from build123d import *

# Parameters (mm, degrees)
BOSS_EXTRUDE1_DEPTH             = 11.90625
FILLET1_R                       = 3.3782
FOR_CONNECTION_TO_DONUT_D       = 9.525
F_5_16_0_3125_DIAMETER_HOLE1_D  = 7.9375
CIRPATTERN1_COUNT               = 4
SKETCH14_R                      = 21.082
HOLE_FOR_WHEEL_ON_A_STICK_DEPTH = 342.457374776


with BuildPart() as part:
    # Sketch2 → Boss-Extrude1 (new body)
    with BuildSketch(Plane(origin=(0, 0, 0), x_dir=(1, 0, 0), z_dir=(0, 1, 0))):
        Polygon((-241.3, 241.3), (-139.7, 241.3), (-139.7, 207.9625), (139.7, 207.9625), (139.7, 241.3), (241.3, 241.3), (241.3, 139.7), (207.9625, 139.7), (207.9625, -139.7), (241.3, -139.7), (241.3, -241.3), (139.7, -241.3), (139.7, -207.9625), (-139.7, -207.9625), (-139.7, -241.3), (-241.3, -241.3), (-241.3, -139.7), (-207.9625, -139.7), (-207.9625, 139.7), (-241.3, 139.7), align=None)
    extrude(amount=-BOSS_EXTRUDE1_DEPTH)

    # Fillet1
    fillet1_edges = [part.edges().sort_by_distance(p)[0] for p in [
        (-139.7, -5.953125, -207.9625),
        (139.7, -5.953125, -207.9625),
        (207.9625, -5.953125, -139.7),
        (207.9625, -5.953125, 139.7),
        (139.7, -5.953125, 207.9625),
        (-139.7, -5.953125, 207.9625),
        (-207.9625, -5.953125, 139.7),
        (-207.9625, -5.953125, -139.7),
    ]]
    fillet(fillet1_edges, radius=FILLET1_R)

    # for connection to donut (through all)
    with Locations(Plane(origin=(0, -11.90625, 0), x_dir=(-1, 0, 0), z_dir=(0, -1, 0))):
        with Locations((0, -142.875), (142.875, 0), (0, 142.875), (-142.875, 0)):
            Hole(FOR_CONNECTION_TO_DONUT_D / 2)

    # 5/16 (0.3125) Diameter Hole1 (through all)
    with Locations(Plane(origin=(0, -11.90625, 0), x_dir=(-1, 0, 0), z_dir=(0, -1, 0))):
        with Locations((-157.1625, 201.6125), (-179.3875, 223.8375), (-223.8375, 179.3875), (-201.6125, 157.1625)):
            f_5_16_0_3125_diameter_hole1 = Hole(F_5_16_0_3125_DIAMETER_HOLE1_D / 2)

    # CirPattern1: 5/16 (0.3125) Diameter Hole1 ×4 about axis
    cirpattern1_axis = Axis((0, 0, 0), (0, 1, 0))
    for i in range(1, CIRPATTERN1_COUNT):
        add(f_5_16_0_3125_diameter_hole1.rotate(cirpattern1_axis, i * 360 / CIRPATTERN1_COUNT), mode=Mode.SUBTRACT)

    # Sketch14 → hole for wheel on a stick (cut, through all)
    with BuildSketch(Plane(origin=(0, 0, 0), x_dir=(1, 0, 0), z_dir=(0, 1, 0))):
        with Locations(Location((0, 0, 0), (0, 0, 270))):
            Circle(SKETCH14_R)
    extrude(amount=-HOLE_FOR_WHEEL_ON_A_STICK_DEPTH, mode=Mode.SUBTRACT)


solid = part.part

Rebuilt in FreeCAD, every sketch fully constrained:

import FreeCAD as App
import Part
import Sketcher
from FreeCAD import Vector
Q = App.Units.Quantity


def edges_at(feature, points):
    """Names of the edges that pass closest to the given points."""
    edges = feature.Shape.Edges
    near = lambda p: min(range(len(edges)), key=lambda i: edges[i].distToShape(Part.Vertex(*p))[0])
    return sorted({f"Edge{near(p) + 1}" for p in points})


def add_polygon(sketch, points):
    """Adds a closed chain of lines whose ends are joined by coincident constraints."""
    first, n = sketch.GeometryCount, len(points)
    for a, b in zip(points, points[1:] + points[:1]):
        sketch.addGeometry(Part.LineSegment(App.Vector(*a, 0), App.Vector(*b, 0)), False)
    for i in range(n):
        sketch.addConstraint(Sketcher.Constraint("Coincident", first + i, 2, first + (i + 1) % n, 1))

doc = App.newDocument("Part")
body = doc.addObject("PartDesign::Body", "Body")

# Sketch on XZ plane
sketch1 = body.newObject("Sketcher::SketchObject", "Sketch")
sketch1.AttachmentSupport = (doc.getObject("XZ_Plane"), [""])
sketch1.MapMode = "FlatFace"
add_polygon(sketch1, [(-140, -241), (-241, -241), (-241, -140), (-208, -140), (-208, 140), (-241, 140), (-241, 241), (-140, 241), (-140, 208), (140, 208), (140, 241), (241, 241), (241, 140), (208, 140), (208, -140), (241, -140), (241, -241), (140, -241), (140, -208), (-140, -208)])  # lines 0-19
sketch1.addConstraint([
    Sketcher.Constraint("Horizontal", 0),
    Sketcher.Constraint("Vertical", 1),
    Sketcher.Constraint("Horizontal", 2),
    Sketcher.Constraint("Vertical", 3),
    Sketcher.Constraint("Horizontal", 4),
    Sketcher.Constraint("Vertical", 5),
    Sketcher.Constraint("Horizontal", 6),
    Sketcher.Constraint("Vertical", 7),
    Sketcher.Constraint("Horizontal", 8),
    Sketcher.Constraint("Vertical", 9),
    Sketcher.Constraint("Horizontal", 10),
    Sketcher.Constraint("Vertical", 11),
    Sketcher.Constraint("Horizontal", 12),
    Sketcher.Constraint("Vertical", 13),
    Sketcher.Constraint("Horizontal", 14),
    Sketcher.Constraint("Vertical", 15),
    Sketcher.Constraint("Horizontal", 16),
    Sketcher.Constraint("Vertical", 17),
    Sketcher.Constraint("Horizontal", 18),
    Sketcher.Constraint("Vertical", 19),
    Sketcher.Constraint("Symmetric", 0, 2, 10, 2, -1, 1),
    Sketcher.Constraint("Symmetric", 2, 2, 12, 2, -1, 1),
    Sketcher.Constraint("Symmetric", 4, 2, 14, 2, -1, 1),
    Sketcher.Constraint("Symmetric", 6, 2, 16, 2, -1, 1),
    Sketcher.Constraint("Symmetric", 8, 2, 18, 2, -1, 1),
    Sketcher.Constraint("Symmetric", 6, 2, 9, 2, -2),
    Sketcher.Constraint("Symmetric", 4, 2, 11, 2, -2),
    Sketcher.Constraint("Equal", 16, 1),
    Sketcher.Constraint("Equal", 18, 3),
    Sketcher.Constraint("Equal", 14, 7),
    Sketcher.Constraint("DistanceX", 0, 2, 0, 1, Q("4 in")),
    Sketcher.Constraint("DistanceX", 8, 1, 8, 2, Q("11 in")),
    Sketcher.Constraint("DistanceX", 2, 1, 2, 2, Q("1.3125 in")),
])
pad1 = body.newObject("PartDesign::Pad", "Pad")
pad1.Profile = sketch1
pad1.Length = Q("0.46875 in")
doc.recompute()

fillet = body.newObject("PartDesign::Fillet", "Fillet")
fillet.Base = (pad1, edges_at(pad1, [
    (-139.7, -5.953, -207.963),
    (139.7, -5.953, -207.963),
    (207.963, -5.953, -139.7),
    (207.963, -5.953, 139.7),
    (139.7, -5.953, 207.963),
    (-139.7, -5.953, 207.963),
    (-207.963, -5.953, 139.7),
    (-207.963, -5.953, -139.7),
]))
fillet.Radius = Q("0.133 in")

# Sketch on XZ plane
sketch2 = body.newObject("Sketcher::SketchObject", "Sketch001")
sketch2.AttachmentSupport = (doc.getObject("XZ_Plane"), [""])
sketch2.MapMode = "FlatFace"
sketch2.AttachmentOffset = App.Placement(Vector(0, 0, 0.46875 * 25.4), App.Rotation())
sketch2.addGeometry([
    Part.Circle(Vector(0, 142.9, 0), Vector(0, 0, 1), 4.8),
    Part.Circle(Vector(-142.9, 0, 0), Vector(0, 0, 1), 4.8),
    Part.Circle(Vector(0, -142.9, 0), Vector(0, 0, 1), 4.8),
    Part.Circle(Vector(142.9, 0, 0), Vector(0, 0, 1), 4.8),
], False)
sketch2.addConstraint([
    Sketcher.Constraint("Equal", 0, 1),
    Sketcher.Constraint("Equal", 1, 2),
    Sketcher.Constraint("Equal", 2, 3),
    Sketcher.Constraint("Symmetric", 0, 3, 2, 3, -1, 1),
    Sketcher.Constraint("Symmetric", 1, 3, 3, 3, -1, 1),
    Sketcher.Constraint("PointOnObject", 0, 3, -2),
    Sketcher.Constraint("PointOnObject", 1, 3, -1),
    Sketcher.Constraint("Diameter", 0, Q("0.375 in")),
    Sketcher.Constraint("DistanceY", 2, 3, 0, 3, Q("11.25 in")),
    Sketcher.Constraint("DistanceX", 1, 3, 3, 3, Q("11.25 in")),
])
doc.recompute()
hole = body.newObject("PartDesign::Hole", "Hole")
hole.Profile = sketch2
hole.ThreadType = "None"
hole.Diameter = Q("0.375 in")
hole.DepthType = "ThroughAll"

# Sketch on XZ plane
sketch3 = body.newObject("Sketcher::SketchObject", "Sketch002")
sketch3.AttachmentSupport = (doc.getObject("XZ_Plane"), [""])
sketch3.MapMode = "FlatFace"
sketch3.AttachmentOffset = App.Placement(Vector(0, 0, 0.46875 * 25.4), App.Rotation())
sketch3.addGeometry([
    Part.Circle(Vector(157.2, -201.6, 0), Vector(0, 0, 1), 4),
    Part.Circle(Vector(179.4, -223.8, 0), Vector(0, 0, 1), 4),
    Part.Circle(Vector(223.8, -179.4, 0), Vector(0, 0, 1), 4),
    Part.Circle(Vector(201.6, -157.2, 0), Vector(0, 0, 1), 4),
], False)
sketch3.addConstraint([
    Sketcher.Constraint("Equal", 0, 1),
    Sketcher.Constraint("Equal", 1, 2),
    Sketcher.Constraint("Equal", 2, 3),
    Sketcher.Constraint("Diameter", 0, Q("0.3125 in")),
    Sketcher.Constraint("DistanceX", 1, 3, 2, 3, Q("1.75 in")),
    Sketcher.Constraint("DistanceY", 1, 3, 2, 3, Q("1.75 in")),
    Sketcher.Constraint("DistanceX", 0, 3, 3, 3, Q("1.75 in")),
    Sketcher.Constraint("DistanceY", 0, 3, 3, 3, Q("1.75 in")),
    Sketcher.Constraint("DistanceX", -1, 1, 0, 3, Q("6.1875 in")),
    Sketcher.Constraint("DistanceY", 0, 3, -1, 1, Q("7.9375 in")),
    Sketcher.Constraint("DistanceX", -1, 1, 1, 3, Q("7.0625 in")),
    Sketcher.Constraint("DistanceY", 1, 3, -1, 1, Q("8.8125 in")),
])
doc.recompute()
hole2 = body.newObject("PartDesign::Hole", "Hole001")
hole2.Profile = sketch3
hole2.ThreadType = "None"
hole2.Diameter = Q("0.3125 in")
hole2.DepthType = "ThroughAll"
doc.recompute()

polarpattern = body.newObject("PartDesign::PolarPattern", "PolarPattern")
polarpattern.Originals = [hole2]
polarpattern.Axis = (doc.getObject("Y_Axis"), [""])
polarpattern.Angle = 360
polarpattern.Occurrences = 4
body.Tip = polarpattern

# Sketch on XZ plane
sketch4 = body.newObject("Sketcher::SketchObject", "Sketch003")
sketch4.AttachmentSupport = (doc.getObject("XZ_Plane"), [""])
sketch4.MapMode = "FlatFace"
sketch4.addGeometry(Part.Circle(Vector(0, 0, 0), Vector(0, 0, 1), 21), False)
sketch4.addConstraint([
    Sketcher.Constraint("Coincident", 0, 3, -1, 1),
    Sketcher.Constraint("Diameter", 0, Q("1.66 in")),
])
pocket1 = body.newObject("PartDesign::Pocket", "Pocket")
pocket1.Profile = sketch4
pocket1.Type = "ThroughAll"
pocket1.Reversed = True

doc.recompute()
